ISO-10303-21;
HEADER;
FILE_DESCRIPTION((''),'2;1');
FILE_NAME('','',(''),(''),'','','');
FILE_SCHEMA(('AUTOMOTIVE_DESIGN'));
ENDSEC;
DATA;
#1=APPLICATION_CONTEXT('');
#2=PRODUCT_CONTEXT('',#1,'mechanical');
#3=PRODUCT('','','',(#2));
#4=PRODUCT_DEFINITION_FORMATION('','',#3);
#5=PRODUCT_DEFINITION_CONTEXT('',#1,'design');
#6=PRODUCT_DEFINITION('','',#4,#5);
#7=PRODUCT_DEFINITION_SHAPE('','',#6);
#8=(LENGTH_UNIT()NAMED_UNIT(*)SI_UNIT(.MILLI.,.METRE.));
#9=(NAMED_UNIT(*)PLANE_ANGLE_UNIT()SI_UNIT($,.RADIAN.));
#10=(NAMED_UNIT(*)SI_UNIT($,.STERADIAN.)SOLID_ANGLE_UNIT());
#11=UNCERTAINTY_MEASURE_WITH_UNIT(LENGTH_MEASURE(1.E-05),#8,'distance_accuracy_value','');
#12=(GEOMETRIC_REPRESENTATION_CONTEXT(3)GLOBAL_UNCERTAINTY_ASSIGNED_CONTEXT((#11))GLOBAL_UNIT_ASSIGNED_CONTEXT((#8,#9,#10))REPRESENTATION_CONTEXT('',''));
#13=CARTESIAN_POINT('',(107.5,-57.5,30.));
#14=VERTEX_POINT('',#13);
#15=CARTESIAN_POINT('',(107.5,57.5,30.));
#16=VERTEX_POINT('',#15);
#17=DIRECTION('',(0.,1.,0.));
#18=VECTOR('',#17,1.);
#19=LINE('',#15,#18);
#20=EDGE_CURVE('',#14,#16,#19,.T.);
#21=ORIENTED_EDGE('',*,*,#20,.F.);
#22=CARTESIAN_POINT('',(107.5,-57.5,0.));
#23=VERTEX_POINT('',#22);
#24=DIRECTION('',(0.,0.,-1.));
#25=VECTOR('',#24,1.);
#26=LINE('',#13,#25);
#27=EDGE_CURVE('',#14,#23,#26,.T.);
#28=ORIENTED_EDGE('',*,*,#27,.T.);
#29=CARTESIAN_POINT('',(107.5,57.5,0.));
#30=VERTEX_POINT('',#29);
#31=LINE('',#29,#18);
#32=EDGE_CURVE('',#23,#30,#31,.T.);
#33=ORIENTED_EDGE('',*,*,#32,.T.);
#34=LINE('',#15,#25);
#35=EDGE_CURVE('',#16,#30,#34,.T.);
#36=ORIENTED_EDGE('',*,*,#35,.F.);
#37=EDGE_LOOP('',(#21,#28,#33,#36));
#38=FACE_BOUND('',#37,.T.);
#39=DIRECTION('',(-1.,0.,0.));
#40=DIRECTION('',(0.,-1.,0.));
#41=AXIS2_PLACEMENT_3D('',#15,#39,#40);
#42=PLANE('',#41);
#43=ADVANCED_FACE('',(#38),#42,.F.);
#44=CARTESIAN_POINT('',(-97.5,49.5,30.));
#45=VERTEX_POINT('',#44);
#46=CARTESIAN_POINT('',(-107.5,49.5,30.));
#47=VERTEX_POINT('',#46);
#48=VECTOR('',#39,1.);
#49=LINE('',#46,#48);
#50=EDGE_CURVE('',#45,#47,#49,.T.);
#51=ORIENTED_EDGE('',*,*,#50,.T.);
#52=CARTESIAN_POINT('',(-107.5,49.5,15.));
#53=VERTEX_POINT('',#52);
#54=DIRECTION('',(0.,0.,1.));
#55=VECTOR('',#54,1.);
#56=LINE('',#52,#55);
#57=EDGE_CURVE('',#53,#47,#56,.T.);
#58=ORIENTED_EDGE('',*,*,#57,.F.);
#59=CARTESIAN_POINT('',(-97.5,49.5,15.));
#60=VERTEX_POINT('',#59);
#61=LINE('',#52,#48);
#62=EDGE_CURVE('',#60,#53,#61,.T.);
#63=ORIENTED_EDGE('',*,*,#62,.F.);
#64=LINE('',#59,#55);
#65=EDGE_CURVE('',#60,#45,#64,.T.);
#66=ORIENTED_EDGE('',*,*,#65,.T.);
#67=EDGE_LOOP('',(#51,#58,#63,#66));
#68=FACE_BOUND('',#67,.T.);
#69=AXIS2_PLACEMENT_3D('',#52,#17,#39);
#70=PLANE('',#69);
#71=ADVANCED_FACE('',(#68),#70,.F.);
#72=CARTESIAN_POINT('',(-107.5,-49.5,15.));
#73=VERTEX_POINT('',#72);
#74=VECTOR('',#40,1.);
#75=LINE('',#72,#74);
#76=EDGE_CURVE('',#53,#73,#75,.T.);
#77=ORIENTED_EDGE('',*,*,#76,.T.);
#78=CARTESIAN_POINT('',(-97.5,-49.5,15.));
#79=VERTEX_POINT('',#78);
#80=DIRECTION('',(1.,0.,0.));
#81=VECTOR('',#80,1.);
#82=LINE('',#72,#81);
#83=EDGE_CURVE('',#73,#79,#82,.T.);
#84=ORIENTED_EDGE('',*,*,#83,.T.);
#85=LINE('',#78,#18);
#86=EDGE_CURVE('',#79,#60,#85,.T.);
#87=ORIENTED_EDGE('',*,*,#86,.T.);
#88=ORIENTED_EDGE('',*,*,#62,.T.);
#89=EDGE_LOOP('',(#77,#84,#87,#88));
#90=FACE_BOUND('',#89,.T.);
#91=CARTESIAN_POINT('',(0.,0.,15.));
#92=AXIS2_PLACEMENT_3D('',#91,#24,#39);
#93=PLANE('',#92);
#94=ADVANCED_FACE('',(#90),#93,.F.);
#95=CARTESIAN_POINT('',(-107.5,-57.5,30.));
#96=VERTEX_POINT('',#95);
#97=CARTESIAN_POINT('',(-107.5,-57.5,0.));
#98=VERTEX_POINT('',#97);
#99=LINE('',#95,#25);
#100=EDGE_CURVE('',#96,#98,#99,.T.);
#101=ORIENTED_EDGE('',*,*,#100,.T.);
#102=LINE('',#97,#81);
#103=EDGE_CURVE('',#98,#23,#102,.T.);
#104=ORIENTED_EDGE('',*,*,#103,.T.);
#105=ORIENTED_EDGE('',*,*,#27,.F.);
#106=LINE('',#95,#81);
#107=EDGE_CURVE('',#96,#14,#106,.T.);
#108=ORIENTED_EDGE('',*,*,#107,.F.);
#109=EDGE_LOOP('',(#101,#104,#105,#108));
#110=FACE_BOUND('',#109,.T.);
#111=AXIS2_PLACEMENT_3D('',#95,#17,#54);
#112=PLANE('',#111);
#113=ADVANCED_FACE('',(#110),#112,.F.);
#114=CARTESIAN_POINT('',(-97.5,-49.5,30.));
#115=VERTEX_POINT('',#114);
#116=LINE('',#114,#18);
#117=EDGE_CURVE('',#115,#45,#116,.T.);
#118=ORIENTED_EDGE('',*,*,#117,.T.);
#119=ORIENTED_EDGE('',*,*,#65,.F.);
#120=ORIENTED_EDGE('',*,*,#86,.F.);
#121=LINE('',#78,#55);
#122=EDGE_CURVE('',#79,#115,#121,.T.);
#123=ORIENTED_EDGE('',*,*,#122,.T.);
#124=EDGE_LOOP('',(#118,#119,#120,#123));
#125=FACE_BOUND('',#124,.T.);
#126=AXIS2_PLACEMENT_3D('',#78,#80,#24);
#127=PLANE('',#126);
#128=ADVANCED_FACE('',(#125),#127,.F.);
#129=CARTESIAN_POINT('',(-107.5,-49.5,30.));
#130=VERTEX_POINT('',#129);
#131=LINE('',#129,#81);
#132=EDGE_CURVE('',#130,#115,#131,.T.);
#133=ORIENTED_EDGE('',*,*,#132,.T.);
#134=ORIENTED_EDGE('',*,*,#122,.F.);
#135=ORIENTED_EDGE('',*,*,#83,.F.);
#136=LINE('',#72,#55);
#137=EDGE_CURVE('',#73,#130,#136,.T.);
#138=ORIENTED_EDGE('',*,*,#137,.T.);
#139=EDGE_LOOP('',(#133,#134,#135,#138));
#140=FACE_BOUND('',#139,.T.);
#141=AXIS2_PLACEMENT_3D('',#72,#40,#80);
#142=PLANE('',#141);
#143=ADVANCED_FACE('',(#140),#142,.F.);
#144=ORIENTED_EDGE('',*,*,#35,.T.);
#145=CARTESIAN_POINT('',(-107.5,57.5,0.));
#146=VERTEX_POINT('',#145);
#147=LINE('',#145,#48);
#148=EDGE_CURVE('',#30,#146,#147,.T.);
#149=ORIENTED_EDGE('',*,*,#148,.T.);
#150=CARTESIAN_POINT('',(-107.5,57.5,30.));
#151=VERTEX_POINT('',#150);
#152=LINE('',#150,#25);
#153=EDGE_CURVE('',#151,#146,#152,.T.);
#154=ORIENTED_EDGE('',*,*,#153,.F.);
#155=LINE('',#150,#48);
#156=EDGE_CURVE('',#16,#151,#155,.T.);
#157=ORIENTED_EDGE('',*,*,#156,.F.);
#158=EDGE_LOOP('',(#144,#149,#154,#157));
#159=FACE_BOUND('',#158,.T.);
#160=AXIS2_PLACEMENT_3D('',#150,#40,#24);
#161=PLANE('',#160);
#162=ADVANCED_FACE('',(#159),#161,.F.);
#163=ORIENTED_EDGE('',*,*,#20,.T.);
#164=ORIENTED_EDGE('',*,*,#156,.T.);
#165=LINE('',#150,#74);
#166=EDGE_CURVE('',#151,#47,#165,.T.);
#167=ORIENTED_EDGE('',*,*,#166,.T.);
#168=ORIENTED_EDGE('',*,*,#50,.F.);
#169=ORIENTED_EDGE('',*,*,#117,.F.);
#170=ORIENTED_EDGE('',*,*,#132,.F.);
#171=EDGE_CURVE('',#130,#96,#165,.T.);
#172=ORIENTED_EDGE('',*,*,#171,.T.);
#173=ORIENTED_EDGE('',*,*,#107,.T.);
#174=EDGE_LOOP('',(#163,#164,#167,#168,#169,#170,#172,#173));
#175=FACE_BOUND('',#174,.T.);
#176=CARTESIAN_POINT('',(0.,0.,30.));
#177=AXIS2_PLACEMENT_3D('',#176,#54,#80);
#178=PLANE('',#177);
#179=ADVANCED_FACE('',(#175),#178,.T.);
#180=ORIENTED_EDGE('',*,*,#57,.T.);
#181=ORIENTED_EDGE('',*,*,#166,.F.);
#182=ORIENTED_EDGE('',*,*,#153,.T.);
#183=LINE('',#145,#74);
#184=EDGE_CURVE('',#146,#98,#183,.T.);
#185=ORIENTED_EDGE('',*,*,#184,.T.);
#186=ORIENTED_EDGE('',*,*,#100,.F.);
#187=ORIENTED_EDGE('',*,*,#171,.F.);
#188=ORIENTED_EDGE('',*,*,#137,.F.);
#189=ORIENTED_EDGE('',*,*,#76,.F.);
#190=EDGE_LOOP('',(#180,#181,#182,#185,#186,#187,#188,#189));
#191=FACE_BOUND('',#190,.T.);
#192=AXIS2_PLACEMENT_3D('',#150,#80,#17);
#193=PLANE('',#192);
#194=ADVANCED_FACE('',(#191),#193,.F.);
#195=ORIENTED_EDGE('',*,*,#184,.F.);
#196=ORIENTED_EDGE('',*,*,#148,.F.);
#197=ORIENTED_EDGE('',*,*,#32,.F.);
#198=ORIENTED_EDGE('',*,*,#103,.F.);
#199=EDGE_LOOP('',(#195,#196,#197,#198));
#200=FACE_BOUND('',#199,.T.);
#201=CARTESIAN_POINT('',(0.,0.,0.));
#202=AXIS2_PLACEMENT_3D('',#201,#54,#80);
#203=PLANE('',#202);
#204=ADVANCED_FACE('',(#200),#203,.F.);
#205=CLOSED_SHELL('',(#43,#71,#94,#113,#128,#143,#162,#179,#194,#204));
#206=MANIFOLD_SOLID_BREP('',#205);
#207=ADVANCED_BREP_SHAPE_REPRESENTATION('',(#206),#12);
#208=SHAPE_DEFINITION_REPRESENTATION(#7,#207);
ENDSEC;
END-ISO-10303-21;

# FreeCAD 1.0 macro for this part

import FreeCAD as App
import Part
import Sketcher

V = App.Vector
Q = App.Units.Quantity

doc = App.newDocument("Part")
body = doc.addObject("PartDesign::Body", "Body")

sketch1 = body.newObject("Sketcher::SketchObject", "Sketch")
sketch1.AttachmentSupport = (doc.getObject("XY_Plane"), [""])
sketch1.MapMode = "FlatFace"
sketch1.addGeometry([
    Part.LineSegment(V(-108, 58, 0), V(-108, -58, 0)),
    Part.LineSegment(V(-108, -58, 0), V(108, -58, 0)),
    Part.LineSegment(V(108, -58, 0), V(108, 58, 0)),
    Part.LineSegment(V(108, 58, 0), V(-108, 58, 0)),
], False)
sketch1.addConstraint([
    Sketcher.Constraint("Coincident", 0, 2, 1, 1),
    Sketcher.Constraint("Coincident", 1, 2, 2, 1),
    Sketcher.Constraint("Coincident", 2, 2, 3, 1),
    Sketcher.Constraint("Coincident", 3, 2, 0, 1),
    Sketcher.Constraint("Vertical", 0),
    Sketcher.Constraint("Horizontal", 1),
    Sketcher.Constraint("Vertical", 2),
    Sketcher.Constraint("Horizontal", 3),
    Sketcher.Constraint("Symmetric", 0, 2, 2, 2, -1, 1),
    Sketcher.Constraint("DistanceX", 1, 1, 1, 2, Q("215 mm")),
    Sketcher.Constraint("DistanceY", 0, 2, 0, 1, Q("115 mm")),
])
pad1 = body.newObject("PartDesign::Pad", "Pad")
pad1.Profile = sketch1
pad1.Length = 30

sketch2 = body.newObject("Sketcher::SketchObject", "Sketch001")
sketch2.AttachmentSupport = (doc.getObject("XY_Plane"), [""])
sketch2.MapMode = "FlatFace"
sketch2.AttachmentOffset = App.Placement(V(0, 0, 30), App.Rotation())
sketch2.addGeometry([
    Part.LineSegment(V(-108, 50, 0), V(-108, -50, 0)),
    Part.LineSegment(V(-108, -50, 0), V(-98, -50, 0)),
    Part.LineSegment(V(-98, -50, 0), V(-98, 50, 0)),
    Part.LineSegment(V(-98, 50, 0), V(-108, 50, 0)),
], False)
sketch2.addConstraint([
    Sketcher.Constraint("Coincident", 0, 2, 1, 1),
    Sketcher.Constraint("Coincident", 1, 2, 2, 1),
    Sketcher.Constraint("Coincident", 2, 2, 3, 1),
    Sketcher.Constraint("Coincident", 3, 2, 0, 1),
    Sketcher.Constraint("Vertical", 0),
    Sketcher.Constraint("Horizontal", 1),
    Sketcher.Constraint("Vertical", 2),
    Sketcher.Constraint("Horizontal", 3),
    Sketcher.Constraint("DistanceX", 1, 1, 1, 2, Q("10 mm")),
    Sketcher.Constraint("DistanceY", 0, 2, 0, 1, Q("99 mm")),
    Sketcher.Constraint("DistanceX", 0, 2, -1, 1, Q("107.5 mm")),
    Sketcher.Constraint("DistanceY", 0, 2, -1, 1, Q("49.5 mm")),
])
pocket1 = body.newObject("PartDesign::Pocket", "Pocket")
pocket1.Profile = sketch2
pocket1.Length = 15

doc.recompute()
